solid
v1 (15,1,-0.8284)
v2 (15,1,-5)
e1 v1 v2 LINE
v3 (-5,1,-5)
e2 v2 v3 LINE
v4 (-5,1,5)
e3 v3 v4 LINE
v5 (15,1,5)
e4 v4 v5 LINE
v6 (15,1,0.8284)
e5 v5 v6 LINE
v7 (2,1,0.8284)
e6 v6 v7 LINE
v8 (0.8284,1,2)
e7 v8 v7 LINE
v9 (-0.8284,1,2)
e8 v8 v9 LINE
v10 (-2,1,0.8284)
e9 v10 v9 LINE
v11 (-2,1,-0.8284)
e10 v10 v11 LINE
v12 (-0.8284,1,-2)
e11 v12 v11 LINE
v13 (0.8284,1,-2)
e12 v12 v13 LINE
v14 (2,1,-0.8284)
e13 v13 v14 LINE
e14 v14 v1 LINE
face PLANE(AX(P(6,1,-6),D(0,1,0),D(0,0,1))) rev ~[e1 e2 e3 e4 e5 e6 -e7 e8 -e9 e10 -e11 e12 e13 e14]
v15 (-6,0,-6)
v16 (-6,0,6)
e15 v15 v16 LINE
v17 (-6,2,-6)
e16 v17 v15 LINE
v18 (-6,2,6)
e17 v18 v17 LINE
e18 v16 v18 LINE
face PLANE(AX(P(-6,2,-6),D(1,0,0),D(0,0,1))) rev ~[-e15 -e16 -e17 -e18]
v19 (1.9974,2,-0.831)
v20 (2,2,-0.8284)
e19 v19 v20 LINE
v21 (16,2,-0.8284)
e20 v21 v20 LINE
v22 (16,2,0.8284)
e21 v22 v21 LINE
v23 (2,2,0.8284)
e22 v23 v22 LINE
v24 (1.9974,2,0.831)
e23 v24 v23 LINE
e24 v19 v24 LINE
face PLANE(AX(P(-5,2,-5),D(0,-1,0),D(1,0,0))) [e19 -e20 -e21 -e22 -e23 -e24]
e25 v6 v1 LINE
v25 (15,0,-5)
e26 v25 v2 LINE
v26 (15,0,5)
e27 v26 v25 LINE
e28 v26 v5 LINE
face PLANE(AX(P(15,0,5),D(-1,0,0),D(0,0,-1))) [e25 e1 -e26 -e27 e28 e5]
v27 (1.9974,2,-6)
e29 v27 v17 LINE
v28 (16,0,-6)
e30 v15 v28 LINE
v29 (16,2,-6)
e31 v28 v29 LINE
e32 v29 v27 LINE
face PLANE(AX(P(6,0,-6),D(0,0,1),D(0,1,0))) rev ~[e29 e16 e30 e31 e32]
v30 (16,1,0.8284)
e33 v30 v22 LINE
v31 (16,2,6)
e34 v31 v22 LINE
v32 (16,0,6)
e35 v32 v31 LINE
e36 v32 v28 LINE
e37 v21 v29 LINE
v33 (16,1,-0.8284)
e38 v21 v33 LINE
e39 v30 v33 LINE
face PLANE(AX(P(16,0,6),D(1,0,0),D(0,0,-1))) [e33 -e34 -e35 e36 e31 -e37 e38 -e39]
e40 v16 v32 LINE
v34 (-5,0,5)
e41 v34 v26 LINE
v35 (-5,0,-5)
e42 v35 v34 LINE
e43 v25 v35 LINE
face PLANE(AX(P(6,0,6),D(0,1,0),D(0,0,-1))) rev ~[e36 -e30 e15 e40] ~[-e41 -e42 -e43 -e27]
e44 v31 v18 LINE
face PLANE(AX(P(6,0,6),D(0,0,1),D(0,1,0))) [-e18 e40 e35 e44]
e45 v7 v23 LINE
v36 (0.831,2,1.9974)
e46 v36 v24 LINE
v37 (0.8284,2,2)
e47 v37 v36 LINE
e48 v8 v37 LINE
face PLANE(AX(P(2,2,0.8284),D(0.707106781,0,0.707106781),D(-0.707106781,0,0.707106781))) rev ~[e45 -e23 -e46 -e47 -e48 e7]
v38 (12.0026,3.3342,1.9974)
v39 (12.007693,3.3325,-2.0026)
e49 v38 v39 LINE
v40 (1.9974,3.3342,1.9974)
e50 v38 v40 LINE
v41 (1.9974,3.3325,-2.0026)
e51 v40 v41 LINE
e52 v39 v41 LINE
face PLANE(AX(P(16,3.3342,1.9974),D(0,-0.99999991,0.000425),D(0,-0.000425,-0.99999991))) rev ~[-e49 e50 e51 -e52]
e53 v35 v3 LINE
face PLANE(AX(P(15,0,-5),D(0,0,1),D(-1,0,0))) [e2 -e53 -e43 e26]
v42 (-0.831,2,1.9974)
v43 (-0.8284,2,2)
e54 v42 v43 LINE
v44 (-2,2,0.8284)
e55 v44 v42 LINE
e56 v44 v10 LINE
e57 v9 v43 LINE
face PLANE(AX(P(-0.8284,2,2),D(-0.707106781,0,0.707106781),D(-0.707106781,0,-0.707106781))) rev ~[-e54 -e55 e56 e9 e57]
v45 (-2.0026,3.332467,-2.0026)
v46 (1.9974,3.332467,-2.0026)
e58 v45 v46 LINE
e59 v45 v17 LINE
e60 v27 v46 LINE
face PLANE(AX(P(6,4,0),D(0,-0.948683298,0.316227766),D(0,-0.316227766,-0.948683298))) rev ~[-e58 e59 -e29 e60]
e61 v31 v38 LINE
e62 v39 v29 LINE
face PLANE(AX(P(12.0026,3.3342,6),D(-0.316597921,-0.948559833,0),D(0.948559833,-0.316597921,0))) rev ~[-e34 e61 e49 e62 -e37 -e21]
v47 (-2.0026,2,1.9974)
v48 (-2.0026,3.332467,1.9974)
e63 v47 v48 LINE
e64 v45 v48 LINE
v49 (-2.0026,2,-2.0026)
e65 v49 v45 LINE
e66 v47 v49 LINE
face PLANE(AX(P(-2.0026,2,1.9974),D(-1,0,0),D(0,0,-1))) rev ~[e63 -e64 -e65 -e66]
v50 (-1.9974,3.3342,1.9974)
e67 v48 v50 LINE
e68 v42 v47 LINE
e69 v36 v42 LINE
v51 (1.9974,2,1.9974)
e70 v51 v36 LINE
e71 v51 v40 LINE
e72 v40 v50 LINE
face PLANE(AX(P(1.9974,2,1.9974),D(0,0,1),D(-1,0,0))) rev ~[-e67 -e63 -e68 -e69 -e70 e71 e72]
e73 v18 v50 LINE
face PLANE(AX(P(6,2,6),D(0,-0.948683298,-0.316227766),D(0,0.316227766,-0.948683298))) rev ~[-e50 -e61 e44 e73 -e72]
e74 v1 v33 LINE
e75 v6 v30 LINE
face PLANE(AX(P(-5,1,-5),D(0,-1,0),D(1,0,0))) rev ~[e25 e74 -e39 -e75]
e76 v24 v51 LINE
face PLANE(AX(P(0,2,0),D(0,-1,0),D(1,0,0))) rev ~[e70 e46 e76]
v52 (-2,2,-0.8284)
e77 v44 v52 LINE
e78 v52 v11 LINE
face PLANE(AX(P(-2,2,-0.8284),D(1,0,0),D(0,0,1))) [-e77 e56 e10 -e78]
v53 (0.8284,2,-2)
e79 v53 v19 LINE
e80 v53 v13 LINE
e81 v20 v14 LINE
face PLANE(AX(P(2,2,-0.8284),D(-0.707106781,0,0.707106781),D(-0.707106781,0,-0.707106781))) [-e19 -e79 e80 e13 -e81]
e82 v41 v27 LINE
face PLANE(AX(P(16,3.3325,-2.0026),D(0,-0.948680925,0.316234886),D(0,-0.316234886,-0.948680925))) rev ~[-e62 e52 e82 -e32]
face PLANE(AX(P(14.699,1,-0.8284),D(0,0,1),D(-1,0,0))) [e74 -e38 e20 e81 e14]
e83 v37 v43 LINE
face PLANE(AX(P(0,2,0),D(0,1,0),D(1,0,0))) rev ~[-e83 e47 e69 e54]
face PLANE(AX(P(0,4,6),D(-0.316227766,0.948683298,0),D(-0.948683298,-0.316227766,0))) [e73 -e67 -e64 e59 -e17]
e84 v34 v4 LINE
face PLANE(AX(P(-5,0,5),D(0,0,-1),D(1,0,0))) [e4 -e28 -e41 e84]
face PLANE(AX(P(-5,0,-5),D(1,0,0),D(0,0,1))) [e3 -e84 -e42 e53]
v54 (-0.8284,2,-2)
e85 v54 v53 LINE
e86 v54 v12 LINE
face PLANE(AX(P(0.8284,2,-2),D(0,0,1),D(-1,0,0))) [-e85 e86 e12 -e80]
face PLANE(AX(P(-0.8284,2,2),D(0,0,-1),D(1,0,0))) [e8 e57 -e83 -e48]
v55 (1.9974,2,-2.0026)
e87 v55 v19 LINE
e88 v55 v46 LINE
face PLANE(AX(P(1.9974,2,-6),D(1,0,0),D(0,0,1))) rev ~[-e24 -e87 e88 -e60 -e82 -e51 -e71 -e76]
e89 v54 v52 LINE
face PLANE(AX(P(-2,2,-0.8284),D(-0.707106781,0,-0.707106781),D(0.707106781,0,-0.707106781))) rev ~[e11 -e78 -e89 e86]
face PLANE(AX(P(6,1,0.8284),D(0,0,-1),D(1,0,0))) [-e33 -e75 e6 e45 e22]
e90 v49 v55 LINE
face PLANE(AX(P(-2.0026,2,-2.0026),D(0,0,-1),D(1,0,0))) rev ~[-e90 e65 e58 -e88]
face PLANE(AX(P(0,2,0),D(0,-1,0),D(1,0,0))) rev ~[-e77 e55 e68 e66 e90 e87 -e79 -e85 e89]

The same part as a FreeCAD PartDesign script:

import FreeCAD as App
import Part
import Sketcher
from FreeCAD import Vector
Q = App.Units.Quantity


def add_polygon(sketch, points):
    """Adds a closed chain of lines whose ends are joined by coincident constraints."""
    first, n = sketch.GeometryCount, len(points)
    for a, b in zip(points, points[1:] + points[:1]):
        sketch.addGeometry(Part.LineSegment(App.Vector(*a, 0), App.Vector(*b, 0)), False)
    for i in range(n):
        sketch.addConstraint(Sketcher.Constraint("Coincident", first + i, 2, first + (i + 1) % n, 1))

doc = App.newDocument("Part")
body = doc.addObject("PartDesign::Body", "Body")

# Sketch on XZ plane
sketch1 = body.newObject("Sketcher::SketchObject", "Sketch")
sketch1.AttachmentSupport = (doc.getObject("XZ_Plane"), [""])
sketch1.MapMode = "FlatFace"
add_polygon(sketch1, [(-6, -6), (-6, 6), (6, 6), (6, -6)])  # lines 0-3
add_polygon(sketch1, [(5, 5), (-5, 5), (-5, -5), (5, -5)])  # lines 4-7
sketch1.addConstraint(Sketcher.Constraint("Vertical", 0))
sketch1.addConstraint(Sketcher.Constraint("Horizontal", 1))
sketch1.addConstraint(Sketcher.Constraint("Vertical", 2))
sketch1.addConstraint(Sketcher.Constraint("Horizontal", 3))
sketch1.addConstraint(Sketcher.Constraint("Horizontal", 4))
sketch1.addConstraint(Sketcher.Constraint("Vertical", 5))
sketch1.addConstraint(Sketcher.Constraint("Horizontal", 6))
sketch1.addConstraint(Sketcher.Constraint("Vertical", 7))
sketch1.addConstraint(Sketcher.Constraint("Symmetric", 0, 2, 2, 2, -1, 1))
sketch1.addConstraint(Sketcher.Constraint("Symmetric", 4, 2, 6, 2, -1, 1))
sketch1.addConstraint(Sketcher.Constraint("Equal", 3, 0))
sketch1.addConstraint(Sketcher.Constraint("Equal", 6, 5))
sketch1.addConstraint(Sketcher.Constraint("DistanceX", 1, 1, 1, 2, 12.0))
sketch1.addConstraint(Sketcher.Constraint("DistanceX", 4, 2, 4, 1, 10.0))
pad1 = body.newObject("PartDesign::Pad", "Pad")
pad1.Profile = sketch1
pad1.Length = 2
pad1.Reversed = True

# Sketch on YZ plane
sketch2 = body.newObject("Sketcher::SketchObject", "Sketch001")
sketch2.AttachmentSupport = (doc.getObject("YZ_Plane"), [""])
sketch2.MapMode = "FlatFace"
sketch2.AttachmentOffset = App.Placement(Vector(0, 0, 6), App.Rotation())
add_polygon(sketch2, [(2, 6), (1, 6), (1, -6), (2, -6)])  # lines 0-3
sketch2.addConstraint(Sketcher.Constraint("Horizontal", 0))
sketch2.addConstraint(Sketcher.Constraint("Vertical", 1))
sketch2.addConstraint(Sketcher.Constraint("Horizontal", 2))
sketch2.addConstraint(Sketcher.Constraint("Vertical", 3))
sketch2.addConstraint(Sketcher.Constraint("DistanceX", 0, 2, 0, 1, 1.0))
sketch2.addConstraint(Sketcher.Constraint("DistanceY", 1, 2, 1, 1, 12.0))
sketch2.addConstraint(Sketcher.Constraint("DistanceX", -1, 1, 0, 2, 1.0))
sketch2.addConstraint(Sketcher.Constraint("DistanceY", -1, 1, 0, 2, 6.0))
pad2 = body.newObject("PartDesign::Pad", "Pad001")
pad2.Profile = sketch2
pad2.Length = 11.5
pad2.Reversed = True

# Sketch on XZ plane
sketch3 = body.newObject("Sketcher::SketchObject", "Sketch002")
sketch3.AttachmentSupport = (doc.getObject("XZ_Plane"), [""])
sketch3.MapMode = "FlatFace"
sketch3.AttachmentOffset = App.Placement(Vector(0, 0, -2), App.Rotation())
add_polygon(sketch3, [(-2, 0.8), (-0.8, 2), (0.8, 2), (2, 0.8), (2, -0.8), (0.8, -2), (-0.8, -2), (-2, -0.8)])  # lines 0-7
sketch3.addConstraint(Sketcher.Constraint("Horizontal", 1))
sketch3.addConstraint(Sketcher.Constraint("Vertical", 3))
sketch3.addConstraint(Sketcher.Constraint("Horizontal", 5))
sketch3.addConstraint(Sketcher.Constraint("Vertical", 7))
sketch3.addConstraint(Sketcher.Constraint("Symmetric", 0, 2, 4, 2, -1, 1))
sketch3.addConstraint(Sketcher.Constraint("Symmetric", 2, 2, 6, 2, -1, 1))
sketch3.addConstraint(Sketcher.Constraint("Perpendicular", 0, 2))
sketch3.addConstraint(Sketcher.Constraint("Perpendicular", 2, 4))
sketch3.addConstraint(Sketcher.Constraint("Perpendicular", 4, 6))
sketch3.addConstraint(Sketcher.Constraint("Horizontal", 3, 2, 6, 2))
sketch3.addConstraint(Sketcher.Constraint("Vertical", 1, 2, 4, 2))
sketch3.addConstraint(Sketcher.Constraint("Equal", 5, 3))
sketch3.addConstraint(Sketcher.Constraint("DistanceY", -1, 1, 0, 2, 2.0))
sketch3.addConstraint(Sketcher.Constraint("Distance", 0, 1.657))
pocket1 = body.newObject("PartDesign::Pocket", "Pocket")
pocket1.Profile = sketch3
pocket1.Type = "ThroughAll"
pocket1.Midplane = True

# Sketch on XZ plane
sketch4 = body.newObject("Sketcher::SketchObject", "Sketch003")
sketch4.AttachmentSupport = (doc.getObject("XZ_Plane"), [""])
sketch4.MapMode = "FlatFace"
sketch4.AttachmentOffset = App.Placement(Vector(0, 0, -2), App.Rotation())
add_polygon(sketch4, [(2, -0.8), (2, 0.8), (7.5, 0.8), (7.5, -0.8)])  # lines 0-3
sketch4.addConstraint(Sketcher.Constraint("Vertical", 0))
sketch4.addConstraint(Sketcher.Constraint("Horizontal", 1))
sketch4.addConstraint(Sketcher.Constraint("Vertical", 2))
sketch4.addConstraint(Sketcher.Constraint("Horizontal", 3))
sketch4.addConstraint(Sketcher.Constraint("DistanceX", -1, 1, 0, 2, 2.0))
sketch4.addConstraint(Sketcher.Constraint("DistanceX", 1, 1, 1, 2, 5.5124))
sketch4.addConstraint(Sketcher.Constraint("DistanceY", 0, 1, 0, 2, 1.6568))
sketch4.addConstraint(Sketcher.Constraint("DistanceY", -1, 1, 0, 2, 0.8284))
pocket2 = body.newObject("PartDesign::Pocket", "Pocket001")
pocket2.Profile = sketch4
pocket2.Length = 1
pocket2.Reversed = True

# Sketch on XZ plane
sketch5 = body.newObject("Sketcher::SketchObject", "Sketch004")
sketch5.AttachmentSupport = (doc.getObject("XZ_Plane"), [""])
sketch5.MapMode = "FlatFace"
sketch5.AttachmentOffset = App.Placement(Vector(0, 0, -2), App.Rotation())
add_polygon(sketch5, [(-6, -6), (-6, 6), (6, 6), (6, -6)])  # lines 0-3
sketch5.addConstraint(Sketcher.Constraint("Vertical", 0))
sketch5.addConstraint(Sketcher.Constraint("Horizontal", 1))
sketch5.addConstraint(Sketcher.Constraint("Vertical", 2))
sketch5.addConstraint(Sketcher.Constraint("Horizontal", 3))
sketch5.addConstraint(Sketcher.Constraint("Symmetric", 0, 2, 2, 2, -1, 1))
sketch5.addConstraint(Sketcher.Constraint("Equal", 3, 0))
sketch5.addConstraint(Sketcher.Constraint("DistanceX", 1, 1, 1, 2, 12.0))
pad3 = body.newObject("PartDesign::Pad", "Pad002")
pad3.Profile = sketch5
pad3.Length = 25
pad3.Reversed = True

# Sketch on YZ plane
sketch6 = body.newObject("Sketcher::SketchObject", "Sketch005")
sketch6.AttachmentSupport = (doc.getObject("YZ_Plane"), [""])
sketch6.MapMode = "FlatFace"
sketch6.AttachmentOffset = App.Placement(Vector(0, 0, 6), App.Rotation())
add_polygon(sketch6, [(2, 8.5), (2, 6), (4, 0), (2, -6), (28.7, -6), (28.7, 8.5)])  # lines 0-5
sketch6.addConstraint(Sketcher.Constraint("Vertical", 0))
sketch6.addConstraint(Sketcher.Constraint("Horizontal", 3))
sketch6.addConstraint(Sketcher.Constraint("Vertical", 4))
sketch6.addConstraint(Sketcher.Constraint("Horizontal", 5))
sketch6.addConstraint(Sketcher.Constraint("Symmetric", 0, 2, 2, 2, -1))
sketch6.addConstraint(Sketcher.Constraint("PointOnObject", 1, 2, -1))
sketch6.addConstraint(Sketcher.Constraint("DistanceX", -1, 1, 1, 2, 4.0))
sketch6.addConstraint(Sketcher.Constraint("DistanceX", -1, 1, 0, 2, 2.0))
sketch6.addConstraint(Sketcher.Constraint("DistanceY", -1, 1, 0, 2, 6.0))
sketch6.addConstraint(Sketcher.Constraint("DistanceX", 3, 1, 3, 2, 26.669))
sketch6.addConstraint(Sketcher.Constraint("DistanceY", 0, 2, 0, 1, 2.469))
pocket3 = body.newObject("PartDesign::Pocket", "Pocket002")
pocket3.Profile = sketch6
pocket3.Length = 23.25

# Sketch on XY plane
sketch7 = body.newObject("Sketcher::SketchObject", "Sketch006")
sketch7.AttachmentSupport = (doc.getObject("XY_Plane"), [""])
sketch7.MapMode = "FlatFace"
sketch7.AttachmentOffset = App.Placement(Vector(0, 0, 6), App.Rotation())
add_polygon(sketch7, [(-6, 2), (0, 4), (6, 2), (7.7, 2), (7.7, 5), (-6, 5)])  # lines 0-5
sketch7.addConstraint(Sketcher.Constraint("Horizontal", 2))
sketch7.addConstraint(Sketcher.Constraint("Vertical", 3))
sketch7.addConstraint(Sketcher.Constraint("Horizontal", 4))
sketch7.addConstraint(Sketcher.Constraint("Vertical", 5))
sketch7.addConstraint(Sketcher.Constraint("Symmetric", 1, 2, 5, 2, -2))
sketch7.addConstraint(Sketcher.Constraint("PointOnObject", 0, 2, -2))
sketch7.addConstraint(Sketcher.Constraint("DistanceY", -1, 1, 0, 2, 4.0))
sketch7.addConstraint(Sketcher.Constraint("DistanceX", -1, 1, 1, 2, 6.0))
sketch7.addConstraint(Sketcher.Constraint("DistanceY", -1, 1, 1, 2, 2.0))
sketch7.addConstraint(Sketcher.Constraint("DistanceX", 2, 1, 2, 2, 1.6732))
sketch7.addConstraint(Sketcher.Constraint("DistanceY", 3, 1, 3, 2, 2.9606))
pocket4 = body.newObject("PartDesign::Pocket", "Pocket003")
pocket4.Profile = sketch7
pocket4.Length = 41.75

# Sketch on XZ plane
sketch8 = body.newObject("Sketcher::SketchObject", "Sketch007")
sketch8.AttachmentSupport = (doc.getObject("XZ_Plane"), [""])
sketch8.MapMode = "FlatFace"
sketch8.AttachmentOffset = App.Placement(Vector(0, 0, -2), App.Rotation())
add_polygon(sketch8, [(2, -2), (2, 2), (-2, 2), (-2, -2)])  # lines 0-3
sketch8.addConstraint(Sketcher.Constraint("Vertical", 0))
sketch8.addConstraint(Sketcher.Constraint("Horizontal", 1))
sketch8.addConstraint(Sketcher.Constraint("Vertical", 2))
sketch8.addConstraint(Sketcher.Constraint("Horizontal", 3))
sketch8.addConstraint(Sketcher.Constraint("Equal", 3, 0))
sketch8.addConstraint(Sketcher.Constraint("DistanceX", 1, 2, 1, 1, 4.0))
sketch8.addConstraint(Sketcher.Constraint("DistanceX", -1, 1, 0, 2, 1.9974))
sketch8.addConstraint(Sketcher.Constraint("DistanceY", -1, 1, 0, 2, 1.9974))
pocket5 = body.newObject("PartDesign::Pocket", "Pocket004")
pocket5.Profile = sketch8
pocket5.Length = 105

# Sketch on YZ plane
sketch9 = body.newObject("Sketcher::SketchObject", "Sketch008")
sketch9.AttachmentSupport = (doc.getObject("YZ_Plane"), [""])
sketch9.MapMode = "FlatFace"
sketch9.AttachmentOffset = App.Placement(Vector(0, 0, 6), App.Rotation())
add_polygon(sketch9, [(2, 6), (0, 6), (0, -6), (2, -6)])  # lines 0-3
sketch9.addConstraint(Sketcher.Constraint("Horizontal", 0))
sketch9.addConstraint(Sketcher.Constraint("Vertical", 1))
sketch9.addConstraint(Sketcher.Constraint("Horizontal", 2))
sketch9.addConstraint(Sketcher.Constraint("Vertical", 3))
sketch9.addConstraint(Sketcher.Constraint("Symmetric", 0, 2, 1, 2, -1, 1))
sketch9.addConstraint(Sketcher.Constraint("DistanceX", 0, 2, 0, 1, 2.0))
sketch9.addConstraint(Sketcher.Constraint("DistanceY", 1, 2, 1, 1, 12.0))
pad4 = body.newObject("PartDesign::Pad", "Pad003")
pad4.Profile = sketch9
pad4.Length = 10

# Sketch on XZ plane
sketch10 = body.newObject("Sketcher::SketchObject", "Sketch009")
sketch10.AttachmentSupport = (doc.getObject("XZ_Plane"), [""])
sketch10.MapMode = "FlatFace"
add_polygon(sketch10, [(5, 5), (5, -5), (15, -5), (15, 5)])  # lines 0-3
sketch10.addConstraint(Sketcher.Constraint("Vertical", 0))
sketch10.addConstraint(Sketcher.Constraint("Horizontal", 1))
sketch10.addConstraint(Sketcher.Constraint("Vertical", 2))
sketch10.addConstraint(Sketcher.Constraint("Horizontal", 3))
sketch10.addConstraint(Sketcher.Constraint("Equal", 3, 0))
sketch10.addConstraint(Sketcher.Constraint("DistanceX", 1, 1, 1, 2, 10.0))
sketch10.addConstraint(Sketcher.Constraint("DistanceX", -1, 1, 0, 2, 5.0))
sketch10.addConstraint(Sketcher.Constraint("DistanceY", 0, 2, -1, 1, 5.0))
pocket6 = body.newObject("PartDesign::Pocket", "Pocket005")
pocket6.Profile = sketch10
pocket6.Length = 1

# Sketch on XZ plane
sketch11 = body.newObject("Sketcher::SketchObject", "Sketch010")
sketch11.AttachmentSupport = (doc.getObject("XZ_Plane"), [""])
sketch11.MapMode = "FlatFace"
sketch11.AttachmentOffset = App.Placement(Vector(0, 0, -2), App.Rotation())
add_polygon(sketch11, [(6, 6), (16, 6), (16, -6), (2, -6), (2, 2)])  # lines 0-4
sketch11.addConstraint(Sketcher.Constraint("Horizontal", 0))
sketch11.addConstraint(Sketcher.Constraint("Vertical", 1))
sketch11.addConstraint(Sketcher.Constraint("Horizontal", 2))
sketch11.addConstraint(Sketcher.Constraint("Vertical", 3))
sketch11.addConstraint(Sketcher.Constraint("DistanceX", 0, 1, 0, 2, 10.0))
sketch11.addConstraint(Sketcher.Constraint("DistanceY", 1, 2, 1, 1, 12.0))
sketch11.addConstraint(Sketcher.Constraint("Angle", 4, Q("45 deg")))
sketch11.addConstraint(Sketcher.Constraint("DistanceX", -1, 1, 0, 2, 16.0))
sketch11.addConstraint(Sketcher.Constraint("DistanceY", -1, 1, 0, 2, 6.0))
sketch11.addConstraint(Sketcher.Constraint("DistanceX", 2, 2, 2, 1, 14.0026))
pad5 = body.newObject("PartDesign::Pad", "Pad004")
pad5.Profile = sketch11
pad5.Length = 1.5
pad5.Reversed = True

# Sketch on YZ plane
sketch12 = body.newObject("Sketcher::SketchObject", "Sketch011")
sketch12.AttachmentSupport = (doc.getObject("YZ_Plane"), [""])
sketch12.MapMode = "FlatFace"
sketch12.AttachmentOffset = App.Placement(Vector(0, 0, 16), App.Rotation())
add_polygon(sketch12, [(6.3, 7.9), (2, 6), (3.3, 2), (3.3, -2), (2, -6), (5.8, -9)])  # lines 0-5
sketch12.addConstraint(Sketcher.Constraint("Symmetric", 0, 2, 3, 2, -1))
sketch12.addConstraint(Sketcher.Constraint("Distance", 2, 4.0))
sketch12.addConstraint(Sketcher.Constraint("DistanceX", -1, 1, 0, 2, 2.0))
sketch12.addConstraint(Sketcher.Constraint("DistanceY", -1, 1, 0, 2, 6.0))
sketch12.addConstraint(Sketcher.Constraint("Distance", 1, 4.219))
sketch12.addConstraint(Sketcher.Constraint("DistanceY", 4, 2, -1, 1, 8.987))
sketch12.addConstraint(Sketcher.Constraint("DistanceY", 1, 2, 5, 2, 5.949))
sketch12.addConstraint(Sketcher.Constraint("DistanceX", 2, 2, 5, 2, 2.945))
sketch12.addConstraint(Sketcher.Constraint("Distance", 0, 4.6995))
sketch12.addConstraint(Sketcher.Constraint("Distance", 3, 4.2136))
sketch12.addConstraint(Sketcher.Constraint("Distance", 4, 4.8528))
pocket7 = body.newObject("PartDesign::Pocket", "Pocket006")
pocket7.Profile = sketch12
pocket7.Length = 26

# Sketch on XY plane
sketch13 = body.newObject("Sketcher::SketchObject", "Sketch012")
sketch13.AttachmentSupport = (doc.getObject("XY_Plane"), [""])
sketch13.MapMode = "FlatFace"
sketch13.AttachmentOffset = App.Placement(Vector(0, 0, 6), App.Rotation())
add_polygon(sketch13, [(12, 3.3), (16, 2), (16, 3.3)])  # lines 0-2
sketch13.addConstraint(Sketcher.Constraint("Vertical", 1))
sketch13.addConstraint(Sketcher.Constraint("Horizontal", 2))
sketch13.addConstraint(Sketcher.Constraint("DistanceX", 2, 2, 2, 1, 3.9974))
sketch13.addConstraint(Sketcher.Constraint("DistanceX", -1, 1, 0, 2, 16.0))
sketch13.addConstraint(Sketcher.Constraint("DistanceY", -1, 1, 0, 2, 2.0))
sketch13.addConstraint(Sketcher.Constraint("DistanceY", 1, 1, 1, 2, 1.3342))
pocket8 = body.newObject("PartDesign::Pocket", "Pocket007")
pocket8.Profile = sketch13
pocket8.Length = 17.75

# Sketch on XZ plane
sketch14 = body.newObject("Sketcher::SketchObject", "Sketch013")
sketch14.AttachmentSupport = (doc.getObject("XZ_Plane"), [""])
sketch14.MapMode = "FlatFace"
sketch14.AttachmentOffset = App.Placement(Vector(0, 0, -1), App.Rotation())
add_polygon(sketch14, [(6, 0.8), (6, -0.8), (16.7, -0.8), (16.7, 0.8)])  # lines 0-3
sketch14.addConstraint(Sketcher.Constraint("Vertical", 0))
sketch14.addConstraint(Sketcher.Constraint("Horizontal", 1))
sketch14.addConstraint(Sketcher.Constraint("Vertical", 2))
sketch14.addConstraint(Sketcher.Constraint("Horizontal", 3))
sketch14.addConstraint(Sketcher.Constraint("DistanceX", -1, 1, 0, 2, 6.0))
sketch14.addConstraint(Sketcher.Constraint("DistanceX", 1, 1, 1, 2, 10.733))
sketch14.addConstraint(Sketcher.Constraint("DistanceY", 0, 2, 0, 1, 1.6568))
sketch14.addConstraint(Sketcher.Constraint("DistanceY", 0, 2, -1, 1, 0.8284))
pocket9 = body.newObject("PartDesign::Pocket", "Pocket008")
pocket9.Profile = sketch14
pocket9.Length = 1

doc.recompute()
